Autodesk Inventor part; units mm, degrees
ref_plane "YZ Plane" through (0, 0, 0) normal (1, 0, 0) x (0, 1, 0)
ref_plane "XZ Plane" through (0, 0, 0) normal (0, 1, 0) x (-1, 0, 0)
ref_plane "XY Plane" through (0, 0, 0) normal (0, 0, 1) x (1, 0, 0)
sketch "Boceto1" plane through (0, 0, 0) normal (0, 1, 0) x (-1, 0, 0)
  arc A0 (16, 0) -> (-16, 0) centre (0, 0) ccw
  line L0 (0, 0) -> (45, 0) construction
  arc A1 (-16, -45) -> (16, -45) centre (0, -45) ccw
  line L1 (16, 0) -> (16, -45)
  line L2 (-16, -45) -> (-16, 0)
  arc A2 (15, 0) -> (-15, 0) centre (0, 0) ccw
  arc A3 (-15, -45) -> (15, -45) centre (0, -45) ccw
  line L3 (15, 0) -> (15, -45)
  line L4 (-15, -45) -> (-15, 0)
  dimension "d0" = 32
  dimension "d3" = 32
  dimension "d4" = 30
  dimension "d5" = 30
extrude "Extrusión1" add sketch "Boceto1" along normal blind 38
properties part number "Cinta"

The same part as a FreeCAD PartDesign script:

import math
import FreeCAD as App
import Part
import Sketcher

V = App.Vector
Q = App.Units.Quantity

doc = App.newDocument("Part")
body = doc.addObject("PartDesign::Body", "Body")

# Sketch on XZ plane
sketch1 = body.newObject("Sketcher::SketchObject", "Sketch")
sketch1.AttachmentSupport = (doc.getObject("XZ_Plane"), [""])
sketch1.MapMode = "FlatFace"
sketch1.addGeometry([
    Part.LineSegment(V(-16, -45, 0), V(-16, 0, 0)),  # 0
    Part.ArcOfCircle(Part.Circle(V(0, 0, 0), V(0, 0, 1), 16), math.radians(0), math.radians(180)),  # 1
    Part.LineSegment(V(16, 0, 0), V(16, -45, 0)),  # 2
    Part.ArcOfCircle(Part.Circle(V(0, -45, 0), V(0, 0, 1), 16), math.radians(180), math.radians(360)),  # 3
    Part.ArcOfCircle(Part.Circle(V(0, 0, 0), V(0, 0, 1), 15), math.radians(0), math.radians(180)),  # 4
    Part.LineSegment(V(-15, 0, 0), V(-15, -45, 0)),  # 5
    Part.ArcOfCircle(Part.Circle(V(0, -45, 0), V(0, 0, 1), 15), math.radians(180), math.radians(360)),  # 6
    Part.LineSegment(V(15, -45, 0), V(15, 0, 0)),  # 7
], False)
sketch1.addConstraint([
    Sketcher.Constraint("Tangent", 0, 2, 1, 2),
    Sketcher.Constraint("Tangent", 1, 1, 2, 1),
    Sketcher.Constraint("Tangent", 2, 2, 3, 2),
    Sketcher.Constraint("Tangent", 3, 1, 0, 1),
    Sketcher.Constraint("Tangent", 4, 2, 5, 1),
    Sketcher.Constraint("Tangent", 5, 2, 6, 1),
    Sketcher.Constraint("Tangent", 6, 2, 7, 1),
    Sketcher.Constraint("Tangent", 7, 2, 4, 1),
    Sketcher.Constraint("Vertical", 0),
    Sketcher.Constraint("Vertical", 2),
    Sketcher.Constraint("Vertical", 5),
    Sketcher.Constraint("Vertical", 7),
    Sketcher.Constraint("Coincident", 1, 3, -1, 1),
    Sketcher.Constraint("Coincident", 4, 3, -1, 1),
    Sketcher.Constraint("Horizontal", 6, 3, 2, 2),
    Sketcher.Constraint("Radius", 1, Q("16 mm")),
    Sketcher.Constraint("Radius", 4, Q("15 mm")),
    Sketcher.Constraint("DistanceY", 0, 1, 0, 2, Q("45 mm")),
])
pad1 = body.newObject("PartDesign::Pad", "Pad")
pad1.Profile = sketch1
pad1.Length = 38
pad1.Reversed = True

doc.recompute()
